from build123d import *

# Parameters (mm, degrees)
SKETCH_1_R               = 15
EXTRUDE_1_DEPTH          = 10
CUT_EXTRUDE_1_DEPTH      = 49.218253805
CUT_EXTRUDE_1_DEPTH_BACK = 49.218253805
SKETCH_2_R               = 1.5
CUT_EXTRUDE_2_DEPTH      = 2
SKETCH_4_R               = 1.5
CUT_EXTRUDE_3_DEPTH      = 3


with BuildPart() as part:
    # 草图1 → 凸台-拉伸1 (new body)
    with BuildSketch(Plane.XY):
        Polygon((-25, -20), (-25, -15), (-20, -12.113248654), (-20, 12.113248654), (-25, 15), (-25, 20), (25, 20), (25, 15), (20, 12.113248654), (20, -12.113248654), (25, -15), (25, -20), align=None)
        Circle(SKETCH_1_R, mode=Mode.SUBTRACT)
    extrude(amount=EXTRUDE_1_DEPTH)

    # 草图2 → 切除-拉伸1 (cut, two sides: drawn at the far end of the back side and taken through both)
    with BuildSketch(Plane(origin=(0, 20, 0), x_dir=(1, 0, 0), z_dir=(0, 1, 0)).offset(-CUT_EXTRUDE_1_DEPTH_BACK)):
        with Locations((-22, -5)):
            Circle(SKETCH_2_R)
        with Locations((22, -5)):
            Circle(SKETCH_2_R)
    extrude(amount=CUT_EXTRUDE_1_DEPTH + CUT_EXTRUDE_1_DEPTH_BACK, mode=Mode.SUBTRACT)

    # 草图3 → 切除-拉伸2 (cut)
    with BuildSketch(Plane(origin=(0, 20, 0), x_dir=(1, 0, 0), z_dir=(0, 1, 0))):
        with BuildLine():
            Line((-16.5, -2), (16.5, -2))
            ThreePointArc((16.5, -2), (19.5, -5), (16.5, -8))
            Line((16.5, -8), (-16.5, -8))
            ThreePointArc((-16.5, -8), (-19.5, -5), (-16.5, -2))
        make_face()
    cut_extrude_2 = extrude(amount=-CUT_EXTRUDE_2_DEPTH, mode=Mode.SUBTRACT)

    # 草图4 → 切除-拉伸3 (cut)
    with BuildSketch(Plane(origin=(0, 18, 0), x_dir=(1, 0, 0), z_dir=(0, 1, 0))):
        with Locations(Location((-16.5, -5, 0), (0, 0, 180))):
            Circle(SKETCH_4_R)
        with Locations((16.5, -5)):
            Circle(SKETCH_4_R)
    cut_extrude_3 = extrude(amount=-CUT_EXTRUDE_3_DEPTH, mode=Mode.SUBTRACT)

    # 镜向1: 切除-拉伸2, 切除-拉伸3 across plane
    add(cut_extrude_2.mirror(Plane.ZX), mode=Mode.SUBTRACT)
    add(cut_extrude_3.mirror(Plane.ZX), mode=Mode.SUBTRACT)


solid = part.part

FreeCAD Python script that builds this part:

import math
import FreeCAD as App
import Part
import Sketcher
from FreeCAD import Vector
Q = App.Units.Quantity

doc = App.newDocument("Part")
body = doc.addObject("PartDesign::Body", "Body")

# Sketch on XY plane
sketch1 = body.newObject("Sketcher::SketchObject", "Sketch")
sketch1.AttachmentSupport = (doc.getObject("XY_Plane"), [""])
sketch1.MapMode = "FlatFace"
sketch1.addGeometry(Part.LineSegment(Vector(-25, -15, 0), Vector(-25, -20, 0)), False)
sketch1.addGeometry(Part.LineSegment(Vector(-25, -20, 0), Vector(25, -20, 0)), False)
sketch1.addGeometry(Part.LineSegment(Vector(25, -20, 0), Vector(25, -15, 0)), False)
sketch1.addGeometry(Part.LineSegment(Vector(25, -15, 0), Vector(20, -12.113249, 0)), False)
sketch1.addGeometry(Part.LineSegment(Vector(20, -12.113249, 0), Vector(20, 12.113249, 0)), False)
sketch1.addGeometry(Part.LineSegment(Vector(20, 12.113249, 0), Vector(25, 15, 0)), False)
sketch1.addGeometry(Part.LineSegment(Vector(25, 15, 0), Vector(25, 20, 0)), False)
sketch1.addGeometry(Part.LineSegment(Vector(25, 20, 0), Vector(-25, 20, 0)), False)
sketch1.addGeometry(Part.LineSegment(Vector(-25, 20, 0), Vector(-25, 15, 0)), False)
sketch1.addGeometry(Part.LineSegment(Vector(-25, 15, 0), Vector(-20, 12.113249, 0)), False)
sketch1.addGeometry(Part.LineSegment(Vector(-20, 12.113249, 0), Vector(-20, -12.113249, 0)), False)
sketch1.addGeometry(Part.LineSegment(Vector(-20, -12.113249, 0), Vector(-25, -15, 0)), False)
sketch1.addGeometry(Part.Circle(Vector(0, 0, 0), Vector(0, 0, 1), 15), False)
sketch1.addConstraint(Sketcher.Constraint("Coincident", 0, 2, 1, 1))
sketch1.addConstraint(Sketcher.Constraint("Coincident", 1, 2, 2, 1))
sketch1.addConstraint(Sketcher.Constraint("Coincident", 2, 2, 3, 1))
sketch1.addConstraint(Sketcher.Constraint("Coincident", 3, 2, 4, 1))
sketch1.addConstraint(Sketcher.Constraint("Coincident", 4, 2, 5, 1))
sketch1.addConstraint(Sketcher.Constraint("Coincident", 5, 2, 6, 1))
sketch1.addConstraint(Sketcher.Constraint("Coincident", 6, 2, 7, 1))
sketch1.addConstraint(Sketcher.Constraint("Coincident", 7, 2, 8, 1))
sketch1.addConstraint(Sketcher.Constraint("Coincident", 8, 2, 9, 1))
sketch1.addConstraint(Sketcher.Constraint("Coincident", 9, 2, 10, 1))
sketch1.addConstraint(Sketcher.Constraint("Coincident", 10, 2, 11, 1))
sketch1.addConstraint(Sketcher.Constraint("Coincident", 11, 2, 0, 1))
sketch1.addConstraint(Sketcher.Constraint("Vertical", 0))
sketch1.addConstraint(Sketcher.Constraint("Horizontal", 1))
sketch1.addConstraint(Sketcher.Constraint("Vertical", 2))
sketch1.addConstraint(Sketcher.Constraint("Vertical", 4))
sketch1.addConstraint(Sketcher.Constraint("Vertical", 6))
sketch1.addConstraint(Sketcher.Constraint("Horizontal", 7))
sketch1.addConstraint(Sketcher.Constraint("Vertical", 8))
sketch1.addConstraint(Sketcher.Constraint("Vertical", 10))
sketch1.addConstraint(Sketcher.Constraint("Coincident", 12, 3, -1, 1))
sketch1.addConstraint(Sketcher.Constraint("Symmetric", 0, 2, 6, 2, -1, 1))
sketch1.addConstraint(Sketcher.Constraint("Symmetric", 2, 2, 8, 2, -1, 1))
sketch1.addConstraint(Sketcher.Constraint("Symmetric", 3, 2, 9, 2, -1, 1))
sketch1.addConstraint(Sketcher.Constraint("Symmetric", 5, 2, 8, 2, -2))
sketch1.addConstraint(Sketcher.Constraint("Parallel", 5, 11))
sketch1.addConstraint(Sketcher.Constraint("Horizontal", 4, 2, 9, 2))
sketch1.addConstraint(Sketcher.Constraint("Horizontal", 3, 2, 10, 2))
sketch1.addConstraint(Sketcher.Constraint("Diameter", 12, 30.0))
sketch1.addConstraint(Sketcher.Constraint("DistanceX", 1, 1, 1, 2, 50.0))
sketch1.addConstraint(Sketcher.Constraint("DistanceY", 0, 2, 0, 1, 5.0))
sketch1.addConstraint(Sketcher.Constraint("Angle", 3, Q("150 deg")))
sketch1.addConstraint(Sketcher.Constraint("DistanceY", 0, 2, -1, 1, 20.0))
sketch1.addConstraint(Sketcher.Constraint("DistanceX", -1, 1, 3, 2, 20.0))
pad1 = body.newObject("PartDesign::Pad", "Pad")
pad1.Profile = sketch1
pad1.Length = 10

# Sketch on XZ plane
sketch2 = body.newObject("Sketcher::SketchObject", "Sketch001")
sketch2.AttachmentSupport = (doc.getObject("XZ_Plane"), [""])
sketch2.MapMode = "FlatFace"
sketch2.AttachmentOffset = App.Placement(Vector(0, 0, -20), App.Rotation())
sketch2.addGeometry(Part.Circle(Vector(-22, 5, 0), Vector(0, 0, 1), 1.5), False)
sketch2.addGeometry(Part.Circle(Vector(22, 5, 0), Vector(0, 0, 1), 1.5), False)
sketch2.addConstraint(Sketcher.Constraint("Equal", 0, 1))
sketch2.addConstraint(Sketcher.Constraint("Symmetric", 0, 3, 1, 3, -2))
sketch2.addConstraint(Sketcher.Constraint("Diameter", 0, 3.0))
sketch2.addConstraint(Sketcher.Constraint("DistanceX", 0, 3, -1, 1, 22.0))
sketch2.addConstraint(Sketcher.Constraint("DistanceY", -1, 1, 0, 3, 5.0))
pocket1 = body.newObject("PartDesign::Pocket", "Pocket")
pocket1.Profile = sketch2
pocket1.Type = "ThroughAll"
pocket1.Midplane = True

# Sketch on XZ plane
sketch3 = body.newObject("Sketcher::SketchObject", "Sketch002")
sketch3.AttachmentSupport = (doc.getObject("XZ_Plane"), [""])
sketch3.MapMode = "FlatFace"
sketch3.AttachmentOffset = App.Placement(Vector(0, 0, -20), App.Rotation())
sketch3.addGeometry(Part.LineSegment(Vector(16.5, 2, 0), Vector(-16.5, 2, 0)), False)
sketch3.addGeometry(Part.ArcOfCircle(Part.Circle(Vector(-16.5, 5, 0), Vector(0, 0, 1), 3), math.radians(90), math.radians(270)), False)
sketch3.addGeometry(Part.LineSegment(Vector(-16.5, 8, 0), Vector(16.5, 8, 0)), False)
sketch3.addGeometry(Part.ArcOfCircle(Part.Circle(Vector(16.5, 5, 0), Vector(0, 0, 1), 3), math.radians(-90), math.radians(90)), False)
sketch3.addConstraint(Sketcher.Constraint("Tangent", 0, 2, 1, 2))
sketch3.addConstraint(Sketcher.Constraint("Tangent", 1, 1, 2, 1))
sketch3.addConstraint(Sketcher.Constraint("Tangent", 2, 2, 3, 2))
sketch3.addConstraint(Sketcher.Constraint("Tangent", 3, 1, 0, 1))
sketch3.addConstraint(Sketcher.Constraint("Horizontal", 0))
sketch3.addConstraint(Sketcher.Constraint("Horizontal", 2))
sketch3.addConstraint(Sketcher.Constraint("Radius", 1, 3.0))
sketch3.addConstraint(Sketcher.Constraint("DistanceX", 0, 2, 0, 1, 33.0))
sketch3.addConstraint(Sketcher.Constraint("DistanceY", -1, 1, 1, 3, 5.0))
sketch3.addConstraint(Sketcher.Constraint("DistanceX", 1, 3, -1, 1, 16.5))
pocket2 = body.newObject("PartDesign::Pocket", "Pocket001")
pocket2.Profile = sketch3
pocket2.Length = 2
pocket2.Reversed = True

# Sketch on XZ plane
sketch4 = body.newObject("Sketcher::SketchObject", "Sketch003")
sketch4.AttachmentSupport = (doc.getObject("XZ_Plane"), [""])
sketch4.MapMode = "FlatFace"
sketch4.AttachmentOffset = App.Placement(Vector(0, 0, -18), App.Rotation())
sketch4.addGeometry(Part.Circle(Vector(-16.5, 5, 0), Vector(0, 0, 1), 1.5), False)
sketch4.addGeometry(Part.Circle(Vector(16.5, 5, 0), Vector(0, 0, 1), 1.5), False)
sketch4.addConstraint(Sketcher.Constraint("Equal", 0, 1))
sketch4.addConstraint(Sketcher.Constraint("Symmetric", 0, 3, 1, 3, -2))
sketch4.addConstraint(Sketcher.Constraint("Diameter", 0, 3.0))
sketch4.addConstraint(Sketcher.Constraint("DistanceY", -1, 1, 0, 3, 5.0))
sketch4.addConstraint(Sketcher.Constraint("DistanceX", 0, 3, 1, 3, 33.0))
pocket3 = body.newObject("PartDesign::Pocket", "Pocket002")
pocket3.Profile = sketch4
pocket3.Length = 3
pocket3.Reversed = True
doc.recompute()

mirrored = body.newObject("PartDesign::Mirrored", "Mirrored")
mirrored.Originals = [pocket2, pocket3]
mirrored.MirrorPlane = (doc.getObject("XZ_Plane"), [""])
body.Tip = mirrored

doc.recompute()
